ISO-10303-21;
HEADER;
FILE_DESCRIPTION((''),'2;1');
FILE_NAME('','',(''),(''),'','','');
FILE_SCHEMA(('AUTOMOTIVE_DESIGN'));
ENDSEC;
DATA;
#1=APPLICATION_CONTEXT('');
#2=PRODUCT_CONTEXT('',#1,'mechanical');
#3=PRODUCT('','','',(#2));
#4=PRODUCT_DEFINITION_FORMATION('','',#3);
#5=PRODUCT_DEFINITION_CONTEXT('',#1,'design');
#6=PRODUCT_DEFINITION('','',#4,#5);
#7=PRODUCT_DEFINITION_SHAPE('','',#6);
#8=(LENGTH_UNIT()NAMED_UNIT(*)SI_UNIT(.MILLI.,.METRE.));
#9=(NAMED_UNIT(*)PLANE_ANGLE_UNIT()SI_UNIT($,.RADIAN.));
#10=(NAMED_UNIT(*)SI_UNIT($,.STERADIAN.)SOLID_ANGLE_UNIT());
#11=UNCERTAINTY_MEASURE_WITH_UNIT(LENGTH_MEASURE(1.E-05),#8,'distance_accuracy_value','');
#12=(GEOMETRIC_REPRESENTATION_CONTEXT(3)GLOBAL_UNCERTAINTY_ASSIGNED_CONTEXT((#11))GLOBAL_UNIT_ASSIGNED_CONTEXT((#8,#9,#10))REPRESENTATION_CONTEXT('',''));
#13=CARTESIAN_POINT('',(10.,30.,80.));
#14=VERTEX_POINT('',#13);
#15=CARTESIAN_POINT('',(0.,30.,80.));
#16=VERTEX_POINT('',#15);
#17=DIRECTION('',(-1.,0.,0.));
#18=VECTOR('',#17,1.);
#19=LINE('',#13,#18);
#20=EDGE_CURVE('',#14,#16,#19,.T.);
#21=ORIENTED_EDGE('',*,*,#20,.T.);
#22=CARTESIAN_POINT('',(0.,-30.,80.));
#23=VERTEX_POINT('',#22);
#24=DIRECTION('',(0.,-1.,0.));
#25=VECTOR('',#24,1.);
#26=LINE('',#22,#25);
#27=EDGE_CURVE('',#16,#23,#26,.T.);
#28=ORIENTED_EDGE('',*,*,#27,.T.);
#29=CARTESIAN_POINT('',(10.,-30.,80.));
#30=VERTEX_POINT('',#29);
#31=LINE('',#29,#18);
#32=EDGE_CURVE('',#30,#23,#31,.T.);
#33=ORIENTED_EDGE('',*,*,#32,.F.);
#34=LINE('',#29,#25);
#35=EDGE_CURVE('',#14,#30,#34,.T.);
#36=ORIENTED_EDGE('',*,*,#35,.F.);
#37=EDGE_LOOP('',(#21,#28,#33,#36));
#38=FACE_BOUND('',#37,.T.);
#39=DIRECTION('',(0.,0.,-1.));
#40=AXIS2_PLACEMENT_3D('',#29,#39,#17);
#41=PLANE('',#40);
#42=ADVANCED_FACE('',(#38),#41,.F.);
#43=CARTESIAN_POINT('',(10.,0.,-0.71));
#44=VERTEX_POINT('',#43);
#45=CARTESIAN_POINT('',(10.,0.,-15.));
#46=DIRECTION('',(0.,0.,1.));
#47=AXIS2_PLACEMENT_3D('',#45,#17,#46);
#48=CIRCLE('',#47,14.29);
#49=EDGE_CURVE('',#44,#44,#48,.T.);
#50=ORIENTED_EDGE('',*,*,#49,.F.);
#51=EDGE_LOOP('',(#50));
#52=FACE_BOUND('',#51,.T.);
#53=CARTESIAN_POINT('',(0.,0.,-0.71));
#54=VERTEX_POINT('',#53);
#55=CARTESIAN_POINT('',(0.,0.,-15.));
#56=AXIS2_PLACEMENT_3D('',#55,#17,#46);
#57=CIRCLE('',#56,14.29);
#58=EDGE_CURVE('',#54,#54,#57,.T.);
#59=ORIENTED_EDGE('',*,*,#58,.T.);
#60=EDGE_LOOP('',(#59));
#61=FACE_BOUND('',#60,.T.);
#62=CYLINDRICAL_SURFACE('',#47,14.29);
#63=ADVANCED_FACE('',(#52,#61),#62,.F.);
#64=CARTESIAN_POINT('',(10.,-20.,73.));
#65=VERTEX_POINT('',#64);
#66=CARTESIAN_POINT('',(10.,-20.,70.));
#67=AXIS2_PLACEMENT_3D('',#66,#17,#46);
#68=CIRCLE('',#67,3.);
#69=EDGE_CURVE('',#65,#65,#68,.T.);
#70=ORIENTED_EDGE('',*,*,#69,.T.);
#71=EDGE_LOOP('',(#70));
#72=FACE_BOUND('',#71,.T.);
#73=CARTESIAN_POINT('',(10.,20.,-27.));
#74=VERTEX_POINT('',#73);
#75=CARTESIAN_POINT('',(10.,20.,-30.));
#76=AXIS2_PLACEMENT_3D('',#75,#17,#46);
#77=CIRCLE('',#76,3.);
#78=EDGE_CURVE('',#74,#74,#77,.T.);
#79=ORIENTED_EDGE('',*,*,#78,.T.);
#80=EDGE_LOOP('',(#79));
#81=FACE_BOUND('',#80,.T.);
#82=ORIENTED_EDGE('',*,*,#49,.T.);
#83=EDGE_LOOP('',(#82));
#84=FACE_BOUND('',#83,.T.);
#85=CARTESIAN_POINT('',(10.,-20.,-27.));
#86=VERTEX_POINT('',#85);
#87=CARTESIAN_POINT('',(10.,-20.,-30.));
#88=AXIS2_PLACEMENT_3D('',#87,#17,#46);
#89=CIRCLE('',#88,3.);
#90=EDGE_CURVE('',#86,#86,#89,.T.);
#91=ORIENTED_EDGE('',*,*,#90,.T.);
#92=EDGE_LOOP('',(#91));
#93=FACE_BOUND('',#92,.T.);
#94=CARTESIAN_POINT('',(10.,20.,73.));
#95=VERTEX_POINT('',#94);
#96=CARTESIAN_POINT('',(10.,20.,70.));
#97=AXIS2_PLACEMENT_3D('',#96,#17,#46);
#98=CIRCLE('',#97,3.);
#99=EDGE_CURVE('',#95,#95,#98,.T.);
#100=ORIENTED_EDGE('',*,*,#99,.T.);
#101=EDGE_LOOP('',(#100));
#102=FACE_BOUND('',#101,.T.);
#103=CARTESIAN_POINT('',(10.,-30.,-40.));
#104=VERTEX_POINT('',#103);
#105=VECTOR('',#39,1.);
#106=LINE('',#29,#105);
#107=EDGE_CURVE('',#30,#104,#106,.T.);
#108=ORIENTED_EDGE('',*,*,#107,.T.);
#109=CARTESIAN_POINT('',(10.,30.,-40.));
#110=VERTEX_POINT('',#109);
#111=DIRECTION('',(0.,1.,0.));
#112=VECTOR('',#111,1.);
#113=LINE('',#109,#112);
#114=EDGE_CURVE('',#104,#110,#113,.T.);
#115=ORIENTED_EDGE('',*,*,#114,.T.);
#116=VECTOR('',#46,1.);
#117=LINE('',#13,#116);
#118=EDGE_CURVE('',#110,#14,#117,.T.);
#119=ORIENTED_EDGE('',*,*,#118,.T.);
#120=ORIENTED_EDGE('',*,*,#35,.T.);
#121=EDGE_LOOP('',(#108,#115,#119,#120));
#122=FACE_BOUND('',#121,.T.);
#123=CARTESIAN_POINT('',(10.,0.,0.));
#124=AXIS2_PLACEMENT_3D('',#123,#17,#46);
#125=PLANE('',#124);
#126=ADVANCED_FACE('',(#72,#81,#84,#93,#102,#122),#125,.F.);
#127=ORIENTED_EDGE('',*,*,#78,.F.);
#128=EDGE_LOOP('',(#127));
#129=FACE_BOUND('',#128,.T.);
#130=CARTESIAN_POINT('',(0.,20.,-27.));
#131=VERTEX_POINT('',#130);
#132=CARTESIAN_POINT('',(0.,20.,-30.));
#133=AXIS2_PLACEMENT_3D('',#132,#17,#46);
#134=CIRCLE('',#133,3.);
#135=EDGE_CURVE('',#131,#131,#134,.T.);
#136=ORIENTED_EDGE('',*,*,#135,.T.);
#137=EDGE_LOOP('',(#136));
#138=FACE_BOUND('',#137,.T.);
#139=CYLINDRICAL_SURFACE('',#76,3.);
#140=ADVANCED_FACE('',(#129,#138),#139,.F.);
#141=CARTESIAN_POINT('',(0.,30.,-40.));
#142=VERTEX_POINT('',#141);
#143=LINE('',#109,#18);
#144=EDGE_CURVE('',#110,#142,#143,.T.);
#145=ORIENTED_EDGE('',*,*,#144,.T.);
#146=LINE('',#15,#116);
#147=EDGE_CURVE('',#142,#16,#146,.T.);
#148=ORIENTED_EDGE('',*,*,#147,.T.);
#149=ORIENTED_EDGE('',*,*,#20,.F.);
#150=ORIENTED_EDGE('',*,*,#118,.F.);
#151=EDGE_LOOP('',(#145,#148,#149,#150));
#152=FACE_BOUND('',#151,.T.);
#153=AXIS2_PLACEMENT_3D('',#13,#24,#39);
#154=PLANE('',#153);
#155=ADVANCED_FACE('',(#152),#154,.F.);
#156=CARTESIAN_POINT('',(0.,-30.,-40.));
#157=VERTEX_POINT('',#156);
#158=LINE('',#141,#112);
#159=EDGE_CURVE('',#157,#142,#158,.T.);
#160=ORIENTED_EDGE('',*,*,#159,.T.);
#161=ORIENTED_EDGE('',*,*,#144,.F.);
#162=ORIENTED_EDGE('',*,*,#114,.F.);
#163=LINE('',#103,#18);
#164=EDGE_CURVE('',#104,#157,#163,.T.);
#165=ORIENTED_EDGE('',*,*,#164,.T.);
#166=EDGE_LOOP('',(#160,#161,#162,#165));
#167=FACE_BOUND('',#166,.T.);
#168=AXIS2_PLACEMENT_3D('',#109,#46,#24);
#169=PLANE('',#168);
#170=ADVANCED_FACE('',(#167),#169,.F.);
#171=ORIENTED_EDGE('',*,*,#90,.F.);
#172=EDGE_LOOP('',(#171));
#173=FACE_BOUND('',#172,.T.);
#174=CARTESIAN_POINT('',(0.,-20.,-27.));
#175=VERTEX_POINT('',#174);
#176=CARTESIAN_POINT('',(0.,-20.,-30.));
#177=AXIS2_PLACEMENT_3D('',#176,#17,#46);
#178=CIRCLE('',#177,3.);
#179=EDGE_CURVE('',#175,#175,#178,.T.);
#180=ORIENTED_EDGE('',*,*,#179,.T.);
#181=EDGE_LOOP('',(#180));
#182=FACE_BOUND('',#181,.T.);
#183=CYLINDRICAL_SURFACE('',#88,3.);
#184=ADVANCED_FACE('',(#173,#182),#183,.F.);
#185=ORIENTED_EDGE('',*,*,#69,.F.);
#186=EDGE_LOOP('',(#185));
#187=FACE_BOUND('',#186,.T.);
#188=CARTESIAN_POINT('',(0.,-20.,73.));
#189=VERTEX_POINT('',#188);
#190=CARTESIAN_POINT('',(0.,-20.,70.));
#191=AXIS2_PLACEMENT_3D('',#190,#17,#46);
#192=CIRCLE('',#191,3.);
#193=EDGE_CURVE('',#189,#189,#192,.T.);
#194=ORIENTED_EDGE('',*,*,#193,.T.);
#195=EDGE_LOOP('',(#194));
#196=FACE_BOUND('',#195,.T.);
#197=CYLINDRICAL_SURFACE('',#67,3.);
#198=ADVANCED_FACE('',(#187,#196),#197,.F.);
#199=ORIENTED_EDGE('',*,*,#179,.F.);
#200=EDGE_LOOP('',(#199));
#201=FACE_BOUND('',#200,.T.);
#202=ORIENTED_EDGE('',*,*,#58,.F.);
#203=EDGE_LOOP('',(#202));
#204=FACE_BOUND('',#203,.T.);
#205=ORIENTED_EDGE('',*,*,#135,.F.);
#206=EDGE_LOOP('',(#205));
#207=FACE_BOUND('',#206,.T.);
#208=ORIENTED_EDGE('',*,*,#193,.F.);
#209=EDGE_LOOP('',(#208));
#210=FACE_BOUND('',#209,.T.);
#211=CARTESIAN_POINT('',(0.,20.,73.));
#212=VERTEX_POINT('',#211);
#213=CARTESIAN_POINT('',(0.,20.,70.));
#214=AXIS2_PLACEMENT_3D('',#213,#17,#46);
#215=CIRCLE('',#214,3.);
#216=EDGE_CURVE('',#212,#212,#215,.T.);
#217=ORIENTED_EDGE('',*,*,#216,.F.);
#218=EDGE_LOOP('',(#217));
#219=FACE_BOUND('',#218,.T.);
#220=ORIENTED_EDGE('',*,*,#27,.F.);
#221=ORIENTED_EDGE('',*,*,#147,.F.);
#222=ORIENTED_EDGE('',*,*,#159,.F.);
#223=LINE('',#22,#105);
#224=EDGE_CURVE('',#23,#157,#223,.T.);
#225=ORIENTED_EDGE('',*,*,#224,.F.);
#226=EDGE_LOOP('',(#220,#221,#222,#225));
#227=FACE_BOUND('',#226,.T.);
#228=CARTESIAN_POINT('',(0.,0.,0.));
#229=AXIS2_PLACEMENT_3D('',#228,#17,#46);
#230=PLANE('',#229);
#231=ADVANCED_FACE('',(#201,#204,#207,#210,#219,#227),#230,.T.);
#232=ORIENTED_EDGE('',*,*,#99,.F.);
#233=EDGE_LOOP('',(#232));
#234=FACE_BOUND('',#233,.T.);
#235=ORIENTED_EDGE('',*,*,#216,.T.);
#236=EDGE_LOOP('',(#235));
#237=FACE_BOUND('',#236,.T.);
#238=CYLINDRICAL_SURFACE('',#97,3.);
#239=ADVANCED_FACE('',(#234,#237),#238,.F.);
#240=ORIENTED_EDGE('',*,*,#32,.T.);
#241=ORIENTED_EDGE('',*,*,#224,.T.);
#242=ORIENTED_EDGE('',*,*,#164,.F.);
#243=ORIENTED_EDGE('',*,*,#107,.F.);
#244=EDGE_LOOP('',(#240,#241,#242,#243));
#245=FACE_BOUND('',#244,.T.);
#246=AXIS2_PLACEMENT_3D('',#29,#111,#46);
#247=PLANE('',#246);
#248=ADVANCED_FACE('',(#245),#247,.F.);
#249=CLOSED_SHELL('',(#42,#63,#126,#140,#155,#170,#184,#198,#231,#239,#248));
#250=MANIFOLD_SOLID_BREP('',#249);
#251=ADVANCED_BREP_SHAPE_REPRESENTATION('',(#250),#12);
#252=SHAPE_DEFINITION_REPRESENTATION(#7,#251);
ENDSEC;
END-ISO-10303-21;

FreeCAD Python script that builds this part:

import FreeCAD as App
import Part
import Sketcher
Q = App.Units.Quantity

doc = App.newDocument("Part")
body = doc.addObject("PartDesign::Body", "Body")

sketch1 = doc.addObject("Sketcher::SketchObject", "Sketch")
body.addObject(sketch1)
sketch1.AttachmentSupport = (doc.YZ_Plane, [""])
sketch1.MapMode = "FlatFace"
sketch1.addGeometry(Part.LineSegment(App.Vector(30, 80, 0), App.Vector(-30, 80, 0)), False)
sketch1.addGeometry(Part.LineSegment(App.Vector(-30, 80, 0), App.Vector(-30, -80, 0)), False)
sketch1.addGeometry(Part.LineSegment(App.Vector(-30, -80, 0), App.Vector(30, -80, 0)), False)
sketch1.addGeometry(Part.LineSegment(App.Vector(30, -80, 0), App.Vector(30, 80, 0)), False)
sketch1.addConstraint(Sketcher.Constraint("Coincident", 0, 2, 1, 1))
sketch1.addConstraint(Sketcher.Constraint("Coincident", 1, 2, 2, 1))
sketch1.addConstraint(Sketcher.Constraint("Coincident", 2, 2, 3, 1))
sketch1.addConstraint(Sketcher.Constraint("Coincident", 3, 2, 0, 1))
sketch1.addConstraint(Sketcher.Constraint("Horizontal", 0))
sketch1.addConstraint(Sketcher.Constraint("Vertical", 1))
sketch1.addConstraint(Sketcher.Constraint("Horizontal", 2))
sketch1.addConstraint(Sketcher.Constraint("Vertical", 3))
sketch1.addConstraint(Sketcher.Constraint("Symmetric", 0, 2, 2, 2, -1, 1))
sketch1.addConstraint(Sketcher.Constraint("DistanceX", 0, 2, 0, 1, Q("60 mm")))
sketch1.addConstraint(Sketcher.Constraint("DistanceY", 1, 2, 1, 1, Q("160 mm")))
pad1 = doc.addObject("PartDesign::Pad", "Pad")
body.addObject(pad1)
pad1.Profile = sketch1
pad1.Length = 10

sketch2 = doc.addObject("Sketcher::SketchObject", "Sketch001")
body.addObject(sketch2)
sketch2.AttachmentSupport = (doc.YZ_Plane, [""])
sketch2.MapMode = "FlatFace"
sketch2.addGeometry(Part.Circle(App.Vector(0, -58, 0), App.Vector(0, 0, 1), 14), False)
sketch2.addGeometry(Part.Circle(App.Vector(0, -15, 0), App.Vector(0, 0, 1), 14), False)
sketch2.addConstraint(Sketcher.Constraint("Equal", 0, 1))
sketch2.addConstraint(Sketcher.Constraint("PointOnObject", 0, 3, -2))
sketch2.addConstraint(Sketcher.Constraint("PointOnObject", 1, 3, -2))
sketch2.addConstraint(Sketcher.Constraint("Diameter", 0, Q("28.58 mm")))
sketch2.addConstraint(Sketcher.Constraint("DistanceY", 1, 3, -1, 1, Q("15 mm")))
sketch2.addConstraint(Sketcher.Constraint("DistanceY", 0, 3, -1, 1, Q("58.2308 mm")))
pocket1 = doc.addObject("PartDesign::Pocket", "Pocket")
body.addObject(pocket1)
pocket1.Profile = sketch2
pocket1.Type = "ThroughAll"
pocket1.Reversed = True

sketch3 = doc.addObject("Sketcher::SketchObject", "Sketch002")
body.addObject(sketch3)
sketch3.AttachmentSupport = (doc.YZ_Plane, [""])
sketch3.MapMode = "FlatFace"
sketch3.addGeometry(Part.LineSegment(App.Vector(30, -80, 0), App.Vector(-30, -80, 0)), False)
sketch3.addGeometry(Part.LineSegment(App.Vector(-30, -80, 0), App.Vector(-30, -40, 0)), False)
sketch3.addGeometry(Part.LineSegment(App.Vector(-30, -40, 0), App.Vector(30, -40, 0)), False)
sketch3.addGeometry(Part.LineSegment(App.Vector(30, -40, 0), App.Vector(30, -80, 0)), False)
sketch3.addConstraint(Sketcher.Constraint("Coincident", 0, 2, 1, 1))
sketch3.addConstraint(Sketcher.Constraint("Coincident", 1, 2, 2, 1))
sketch3.addConstraint(Sketcher.Constraint("Coincident", 2, 2, 3, 1))
sketch3.addConstraint(Sketcher.Constraint("Coincident", 3, 2, 0, 1))
sketch3.addConstraint(Sketcher.Constraint("Horizontal", 0))
sketch3.addConstraint(Sketcher.Constraint("Vertical", 1))
sketch3.addConstraint(Sketcher.Constraint("Horizontal", 2))
sketch3.addConstraint(Sketcher.Constraint("Vertical", 3))
sketch3.addConstraint(Sketcher.Constraint("DistanceX", 0, 2, 0, 1, Q("60 mm")))
sketch3.addConstraint(Sketcher.Constraint("DistanceY", 1, 1, 1, 2, Q("40 mm")))
sketch3.addConstraint(Sketcher.Constraint("DistanceX", 0, 2, -1, 1, Q("30 mm")))
sketch3.addConstraint(Sketcher.Constraint("DistanceY", 0, 2, -1, 1, Q("80 mm")))
pocket2 = doc.addObject("PartDesign::Pocket", "Pocket001")
body.addObject(pocket2)
pocket2.Profile = sketch3
pocket2.Type = "ThroughAll"
pocket2.Reversed = True

sketch4 = doc.addObject("Sketcher::SketchObject", "Sketch003")
body.addObject(sketch4)
sketch4.AttachmentSupport = (doc.YZ_Plane, [""])
sketch4.MapMode = "FlatFace"
sketch4.addGeometry(Part.Circle(App.Vector(20, 70, 0), App.Vector(0, 0, 1), 3), False)
sketch4.addGeometry(Part.Circle(App.Vector(20, -30, 0), App.Vector(0, 0, 1), 3), False)
sketch4.addGeometry(Part.Circle(App.Vector(-20, -30, 0), App.Vector(0, 0, 1), 3), False)
sketch4.addGeometry(Part.Circle(App.Vector(-20, 70, 0), App.Vector(0, 0, 1), 3), False)
sketch4.addConstraint(Sketcher.Constraint("Equal", 0, 1))
sketch4.addConstraint(Sketcher.Constraint("Equal", 1, 2))
sketch4.addConstraint(Sketcher.Constraint("Equal", 2, 3))
sketch4.addConstraint(Sketcher.Constraint("Symmetric", 1, 3, 2, 3, -2))
sketch4.addConstraint(Sketcher.Constraint("Symmetric", 0, 3, 3, 3, -2))
sketch4.addConstraint(Sketcher.Constraint("Vertical", 0, 3, 1, 3))
sketch4.addConstraint(Sketcher.Constraint("Diameter", 0, Q("6 mm")))
sketch4.addConstraint(Sketcher.Constraint("DistanceX", -1, 1, 0, 3, Q("20 mm")))
sketch4.addConstraint(Sketcher.Constraint("DistanceY", -1, 1, 0, 3, Q("70 mm")))
sketch4.addConstraint(Sketcher.Constraint("DistanceY", 1, 3, -1, 1, Q("30 mm")))
pocket3 = doc.addObject("PartDesign::Pocket", "Pocket002")
body.addObject(pocket3)
pocket3.Profile = sketch4
pocket3.Type = "ThroughAll"
pocket3.Reversed = True

doc.recompute()
